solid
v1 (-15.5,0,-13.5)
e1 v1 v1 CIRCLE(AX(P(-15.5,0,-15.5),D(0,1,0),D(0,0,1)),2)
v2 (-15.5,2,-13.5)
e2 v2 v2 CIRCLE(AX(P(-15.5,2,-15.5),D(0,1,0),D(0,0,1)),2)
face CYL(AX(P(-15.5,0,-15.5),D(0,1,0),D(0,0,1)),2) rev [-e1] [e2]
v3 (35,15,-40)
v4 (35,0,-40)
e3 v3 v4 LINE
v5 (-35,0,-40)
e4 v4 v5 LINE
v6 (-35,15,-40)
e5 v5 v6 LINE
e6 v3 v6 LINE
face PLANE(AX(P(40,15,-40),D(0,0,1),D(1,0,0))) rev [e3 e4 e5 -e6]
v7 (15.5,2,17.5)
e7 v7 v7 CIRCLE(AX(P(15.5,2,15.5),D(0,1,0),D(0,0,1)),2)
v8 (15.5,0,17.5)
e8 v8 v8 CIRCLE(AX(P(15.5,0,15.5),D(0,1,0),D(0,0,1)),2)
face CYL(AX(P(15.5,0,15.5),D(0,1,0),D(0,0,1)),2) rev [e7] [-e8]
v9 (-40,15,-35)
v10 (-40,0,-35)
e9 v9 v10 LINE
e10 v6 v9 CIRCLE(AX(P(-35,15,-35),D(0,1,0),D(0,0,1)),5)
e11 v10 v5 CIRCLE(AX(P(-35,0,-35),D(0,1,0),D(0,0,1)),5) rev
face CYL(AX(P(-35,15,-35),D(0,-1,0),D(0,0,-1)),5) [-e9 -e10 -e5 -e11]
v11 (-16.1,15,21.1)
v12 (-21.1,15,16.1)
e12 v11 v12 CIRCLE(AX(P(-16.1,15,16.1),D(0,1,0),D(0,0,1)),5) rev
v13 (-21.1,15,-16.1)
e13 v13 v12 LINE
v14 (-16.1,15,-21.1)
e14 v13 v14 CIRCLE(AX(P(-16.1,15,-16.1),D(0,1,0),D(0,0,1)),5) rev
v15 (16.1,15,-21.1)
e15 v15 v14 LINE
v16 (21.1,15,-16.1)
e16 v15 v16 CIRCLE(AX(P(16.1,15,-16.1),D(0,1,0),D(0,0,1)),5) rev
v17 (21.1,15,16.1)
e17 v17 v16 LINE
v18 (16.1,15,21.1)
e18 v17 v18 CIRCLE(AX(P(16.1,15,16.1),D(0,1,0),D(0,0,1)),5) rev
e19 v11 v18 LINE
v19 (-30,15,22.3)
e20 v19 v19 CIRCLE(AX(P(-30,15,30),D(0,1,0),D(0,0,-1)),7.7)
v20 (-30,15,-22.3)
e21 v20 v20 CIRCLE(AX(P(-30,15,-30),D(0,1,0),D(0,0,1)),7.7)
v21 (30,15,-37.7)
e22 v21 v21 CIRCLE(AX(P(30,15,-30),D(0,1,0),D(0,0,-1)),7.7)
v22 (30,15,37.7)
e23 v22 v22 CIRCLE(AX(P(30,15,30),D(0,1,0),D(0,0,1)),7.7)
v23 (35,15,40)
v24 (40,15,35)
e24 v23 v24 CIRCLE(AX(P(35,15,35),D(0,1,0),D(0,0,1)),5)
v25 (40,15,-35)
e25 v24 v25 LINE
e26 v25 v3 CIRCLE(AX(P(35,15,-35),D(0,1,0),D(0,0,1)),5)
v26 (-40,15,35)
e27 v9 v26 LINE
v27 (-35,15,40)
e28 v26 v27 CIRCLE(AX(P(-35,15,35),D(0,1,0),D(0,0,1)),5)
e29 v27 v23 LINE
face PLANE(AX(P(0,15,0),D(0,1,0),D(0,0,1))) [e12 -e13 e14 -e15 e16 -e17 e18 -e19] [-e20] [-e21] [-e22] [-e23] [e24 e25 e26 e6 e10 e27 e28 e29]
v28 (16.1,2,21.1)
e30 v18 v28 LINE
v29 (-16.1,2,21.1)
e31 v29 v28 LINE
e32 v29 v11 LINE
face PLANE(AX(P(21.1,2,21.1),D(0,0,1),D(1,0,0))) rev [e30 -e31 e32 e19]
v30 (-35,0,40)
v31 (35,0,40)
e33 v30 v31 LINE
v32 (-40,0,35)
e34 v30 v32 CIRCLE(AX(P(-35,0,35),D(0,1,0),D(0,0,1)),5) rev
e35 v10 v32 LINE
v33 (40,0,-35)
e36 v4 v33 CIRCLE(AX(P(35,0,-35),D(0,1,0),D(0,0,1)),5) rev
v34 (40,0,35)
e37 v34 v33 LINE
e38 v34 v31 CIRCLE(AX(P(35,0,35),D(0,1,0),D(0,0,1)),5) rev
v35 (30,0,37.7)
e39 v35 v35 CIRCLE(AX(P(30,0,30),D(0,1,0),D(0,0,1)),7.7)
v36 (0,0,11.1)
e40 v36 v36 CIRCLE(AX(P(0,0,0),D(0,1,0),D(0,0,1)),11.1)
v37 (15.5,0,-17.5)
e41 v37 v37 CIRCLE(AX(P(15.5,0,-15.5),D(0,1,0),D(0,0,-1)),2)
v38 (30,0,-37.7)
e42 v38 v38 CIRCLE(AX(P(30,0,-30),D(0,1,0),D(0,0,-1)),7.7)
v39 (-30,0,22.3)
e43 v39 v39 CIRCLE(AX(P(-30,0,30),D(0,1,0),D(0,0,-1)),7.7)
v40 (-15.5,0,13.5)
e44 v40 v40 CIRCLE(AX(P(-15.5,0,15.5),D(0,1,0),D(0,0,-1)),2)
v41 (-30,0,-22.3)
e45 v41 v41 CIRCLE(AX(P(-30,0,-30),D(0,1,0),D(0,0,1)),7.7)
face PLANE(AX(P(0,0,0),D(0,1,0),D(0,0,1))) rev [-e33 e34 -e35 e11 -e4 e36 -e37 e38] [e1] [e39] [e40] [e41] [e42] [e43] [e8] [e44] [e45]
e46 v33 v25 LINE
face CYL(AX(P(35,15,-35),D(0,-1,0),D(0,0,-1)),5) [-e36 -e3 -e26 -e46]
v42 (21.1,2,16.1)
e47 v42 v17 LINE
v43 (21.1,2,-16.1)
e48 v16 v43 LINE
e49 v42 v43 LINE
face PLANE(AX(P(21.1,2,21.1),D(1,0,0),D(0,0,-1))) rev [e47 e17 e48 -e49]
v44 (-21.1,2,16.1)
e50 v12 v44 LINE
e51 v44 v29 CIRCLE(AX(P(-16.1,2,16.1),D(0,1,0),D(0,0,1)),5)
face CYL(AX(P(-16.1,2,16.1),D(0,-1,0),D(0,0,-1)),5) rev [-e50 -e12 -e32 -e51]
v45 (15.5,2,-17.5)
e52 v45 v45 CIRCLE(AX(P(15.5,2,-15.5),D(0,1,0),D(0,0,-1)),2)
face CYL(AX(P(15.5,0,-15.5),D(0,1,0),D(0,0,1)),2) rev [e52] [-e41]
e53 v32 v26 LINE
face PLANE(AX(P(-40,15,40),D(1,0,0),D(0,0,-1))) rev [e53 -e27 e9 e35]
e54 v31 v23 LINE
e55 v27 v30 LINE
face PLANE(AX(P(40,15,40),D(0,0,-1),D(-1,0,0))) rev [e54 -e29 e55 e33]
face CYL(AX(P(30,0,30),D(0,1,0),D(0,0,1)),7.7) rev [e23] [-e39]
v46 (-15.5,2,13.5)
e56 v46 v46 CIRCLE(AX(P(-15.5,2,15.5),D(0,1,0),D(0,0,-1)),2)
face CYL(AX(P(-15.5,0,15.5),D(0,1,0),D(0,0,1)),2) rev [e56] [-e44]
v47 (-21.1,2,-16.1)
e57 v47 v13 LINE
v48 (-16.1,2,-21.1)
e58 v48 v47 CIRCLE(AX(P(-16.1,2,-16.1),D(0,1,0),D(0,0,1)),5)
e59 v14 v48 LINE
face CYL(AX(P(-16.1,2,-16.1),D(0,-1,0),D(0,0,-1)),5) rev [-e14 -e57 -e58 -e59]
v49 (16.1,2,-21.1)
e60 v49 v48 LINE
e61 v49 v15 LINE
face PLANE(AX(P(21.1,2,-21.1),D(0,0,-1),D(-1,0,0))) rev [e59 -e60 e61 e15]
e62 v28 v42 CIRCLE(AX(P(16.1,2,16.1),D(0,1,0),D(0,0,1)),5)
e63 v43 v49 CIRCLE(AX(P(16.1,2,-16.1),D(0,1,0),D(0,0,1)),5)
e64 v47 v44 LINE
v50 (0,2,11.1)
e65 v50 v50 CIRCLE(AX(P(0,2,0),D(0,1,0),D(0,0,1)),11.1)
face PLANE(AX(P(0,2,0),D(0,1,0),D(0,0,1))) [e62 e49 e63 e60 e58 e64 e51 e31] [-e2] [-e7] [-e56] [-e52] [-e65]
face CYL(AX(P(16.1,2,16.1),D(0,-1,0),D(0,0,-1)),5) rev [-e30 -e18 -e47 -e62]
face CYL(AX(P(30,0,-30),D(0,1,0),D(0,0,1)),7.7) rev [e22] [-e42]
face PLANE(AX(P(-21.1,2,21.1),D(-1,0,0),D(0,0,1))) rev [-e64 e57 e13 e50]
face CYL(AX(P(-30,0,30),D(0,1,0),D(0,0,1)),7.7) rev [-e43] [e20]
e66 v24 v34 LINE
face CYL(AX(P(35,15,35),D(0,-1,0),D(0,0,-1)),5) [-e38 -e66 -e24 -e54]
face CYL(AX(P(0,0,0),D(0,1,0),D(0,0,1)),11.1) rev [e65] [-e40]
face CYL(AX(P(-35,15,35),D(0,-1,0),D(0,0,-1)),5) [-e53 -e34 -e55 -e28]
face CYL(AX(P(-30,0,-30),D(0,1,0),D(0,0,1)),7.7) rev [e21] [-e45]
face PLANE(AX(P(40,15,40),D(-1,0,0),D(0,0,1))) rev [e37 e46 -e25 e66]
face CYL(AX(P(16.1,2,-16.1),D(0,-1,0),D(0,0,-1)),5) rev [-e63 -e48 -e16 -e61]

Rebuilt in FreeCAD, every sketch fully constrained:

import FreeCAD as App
import Part
import Sketcher
from FreeCAD import Vector


def edges_at(feature, points):
    """Names of the edges that pass closest to the given points."""
    edges = feature.Shape.Edges
    near = lambda p: min(range(len(edges)), key=lambda i: edges[i].distToShape(Part.Vertex(*p))[0])
    return sorted({f"Edge{near(p) + 1}" for p in points})


def add_polygon(sketch, points):
    """Adds a closed chain of lines whose ends are joined by coincident constraints."""
    first, n = sketch.GeometryCount, len(points)
    for a, b in zip(points, points[1:] + points[:1]):
        sketch.addGeometry(Part.LineSegment(App.Vector(*a, 0), App.Vector(*b, 0)), False)
    for i in range(n):
        sketch.addConstraint(Sketcher.Constraint("Coincident", first + i, 2, first + (i + 1) % n, 1))

doc = App.newDocument("Part")
body = doc.addObject("PartDesign::Body", "Body")

sketch1 = body.newObject("Sketcher::SketchObject", "Sketch")
sketch1.AttachmentSupport = (doc.getObject("XZ_Plane"), [""])
sketch1.MapMode = "FlatFace"
add_polygon(sketch1, [(-40, -40), (-40, 40), (40, 40), (40, -40)])
sketch1.addConstraint([
    Sketcher.Constraint("Vertical", 0),
    Sketcher.Constraint("Horizontal", 1),
    Sketcher.Constraint("Vertical", 2),
    Sketcher.Constraint("Horizontal", 3),
    Sketcher.Constraint("Symmetric", 0, 2, 2, 2, -1, 1),
    Sketcher.Constraint("Equal", 3, 0),
    Sketcher.Constraint("DistanceX", 1, 1, 1, 2, 80.0),
])
pad1 = body.newObject("PartDesign::Pad", "Pad")
pad1.Profile = sketch1
pad1.Length = 15
pad1.Reversed = True

sketch2 = body.newObject("Sketcher::SketchObject", "Sketch001")
sketch2.AttachmentSupport = (doc.getObject("XZ_Plane"), [""])
sketch2.MapMode = "FlatFace"
sketch2.AttachmentOffset = App.Placement(Vector(0, 0, -15), App.Rotation())
add_polygon(sketch2, [(-21, -21), (-21, 21), (21, 21), (21, -21)])
sketch2.addConstraint([
    Sketcher.Constraint("Vertical", 0),
    Sketcher.Constraint("Horizontal", 1),
    Sketcher.Constraint("Vertical", 2),
    Sketcher.Constraint("Horizontal", 3),
    Sketcher.Constraint("Symmetric", 0, 2, 2, 2, -1, 1),
    Sketcher.Constraint("Equal", 3, 0),
    Sketcher.Constraint("DistanceX", 1, 1, 1, 2, 42.2),
])
pocket1 = body.newObject("PartDesign::Pocket", "Pocket")
pocket1.Profile = sketch2
pocket1.Length = 13
pocket1.Reversed = True
doc.recompute()

fillet = body.newObject("PartDesign::Fillet", "Fillet")
fillet.Base = (pocket1, edges_at(pocket1, [
    (-21.1, 8.5, 21.1),
    (-21.1, 8.5, -21.1),
    (21.1, 8.5, -21.1),
    (21.1, 8.5, 21.1),
]))
fillet.Radius = 5

sketch3 = body.newObject("Sketcher::SketchObject", "Sketch002")
sketch3.AttachmentSupport = (doc.getObject("XZ_Plane"), [""])
sketch3.MapMode = "FlatFace"
sketch3.AttachmentOffset = App.Placement(Vector(0, 0, -2), App.Rotation())
sketch3.addGeometry([
    Part.Circle(Vector(0, 0, 0), Vector(0, 0, 1), 11.1),
    Part.Circle(Vector(-15.5, -15.5, 0), Vector(0, 0, 1), 2),
    Part.Circle(Vector(15.5, -15.5, 0), Vector(0, 0, 1), 2),
    Part.Circle(Vector(15.5, 15.5, 0), Vector(0, 0, 1), 2),
    Part.Circle(Vector(-15.5, 15.5, 0), Vector(0, 0, 1), 2),
], False)
sketch3.addConstraint([
    Sketcher.Constraint("Coincident", 0, 3, -1, 1),
    Sketcher.Constraint("Equal", 1, 2),
    Sketcher.Constraint("Equal", 2, 3),
    Sketcher.Constraint("Equal", 3, 4),
    Sketcher.Constraint("Symmetric", 1, 3, 3, 3, -1, 1),
    Sketcher.Constraint("Symmetric", 2, 3, 4, 3, -1, 1),
    Sketcher.Constraint("Symmetric", 1, 3, 2, 3, -2),
    Sketcher.Constraint("Diameter", 1, 4.0),
    Sketcher.Constraint("Diameter", 0, 22.2),
    Sketcher.Constraint("DistanceX", 1, 3, 2, 3, 31.0),
    Sketcher.Constraint("DistanceY", 2, 3, 3, 3, 31.0),
])
pocket2 = body.newObject("PartDesign::Pocket", "Pocket001")
pocket2.Profile = sketch3
pocket2.Type = "ThroughAll"
pocket2.Reversed = True

sketch4 = body.newObject("Sketcher::SketchObject", "Sketch003")
sketch4.AttachmentSupport = (doc.getObject("XZ_Plane"), [""])
sketch4.MapMode = "FlatFace"
sketch4.AttachmentOffset = App.Placement(Vector(0, 0, -15), App.Rotation())
sketch4.addGeometry([
    Part.Circle(Vector(-30, -30, 0), Vector(0, 0, 1), 8),
    Part.Circle(Vector(30, -30, 0), Vector(0, 0, 1), 8),
    Part.Circle(Vector(30, 30, 0), Vector(0, 0, 1), 8),
    Part.Circle(Vector(-30, 30, 0), Vector(0, 0, 1), 8),
], False)
sketch4.addConstraint([
    Sketcher.Constraint("Equal", 0, 1),
    Sketcher.Constraint("Equal", 1, 2),
    Sketcher.Constraint("Equal", 2, 3),
    Sketcher.Constraint("Symmetric", 0, 3, 2, 3, -1, 1),
    Sketcher.Constraint("Symmetric", 1, 3, 3, 3, -1, 1),
    Sketcher.Constraint("Symmetric", 0, 3, 1, 3, -2),
    Sketcher.Constraint("Diameter", 0, 15.4),
    Sketcher.Constraint("DistanceX", 0, 3, -1, 1, 30.0),
    Sketcher.Constraint("DistanceY", 0, 3, -1, 1, 30.0),
])
pocket3 = body.newObject("PartDesign::Pocket", "Pocket002")
pocket3.Profile = sketch4
pocket3.Type = "ThroughAll"
pocket3.Reversed = True
doc.recompute()

fillet2 = body.newObject("PartDesign::Fillet", "Fillet001")
fillet2.Base = (pocket3, edges_at(pocket3, [
    (-40, 7.5, -40),
    (40, 7.5, -40),
    (40, 7.5, 40),
    (-40, 7.5, 40),
]))
fillet2.Radius = 5

doc.recompute()
